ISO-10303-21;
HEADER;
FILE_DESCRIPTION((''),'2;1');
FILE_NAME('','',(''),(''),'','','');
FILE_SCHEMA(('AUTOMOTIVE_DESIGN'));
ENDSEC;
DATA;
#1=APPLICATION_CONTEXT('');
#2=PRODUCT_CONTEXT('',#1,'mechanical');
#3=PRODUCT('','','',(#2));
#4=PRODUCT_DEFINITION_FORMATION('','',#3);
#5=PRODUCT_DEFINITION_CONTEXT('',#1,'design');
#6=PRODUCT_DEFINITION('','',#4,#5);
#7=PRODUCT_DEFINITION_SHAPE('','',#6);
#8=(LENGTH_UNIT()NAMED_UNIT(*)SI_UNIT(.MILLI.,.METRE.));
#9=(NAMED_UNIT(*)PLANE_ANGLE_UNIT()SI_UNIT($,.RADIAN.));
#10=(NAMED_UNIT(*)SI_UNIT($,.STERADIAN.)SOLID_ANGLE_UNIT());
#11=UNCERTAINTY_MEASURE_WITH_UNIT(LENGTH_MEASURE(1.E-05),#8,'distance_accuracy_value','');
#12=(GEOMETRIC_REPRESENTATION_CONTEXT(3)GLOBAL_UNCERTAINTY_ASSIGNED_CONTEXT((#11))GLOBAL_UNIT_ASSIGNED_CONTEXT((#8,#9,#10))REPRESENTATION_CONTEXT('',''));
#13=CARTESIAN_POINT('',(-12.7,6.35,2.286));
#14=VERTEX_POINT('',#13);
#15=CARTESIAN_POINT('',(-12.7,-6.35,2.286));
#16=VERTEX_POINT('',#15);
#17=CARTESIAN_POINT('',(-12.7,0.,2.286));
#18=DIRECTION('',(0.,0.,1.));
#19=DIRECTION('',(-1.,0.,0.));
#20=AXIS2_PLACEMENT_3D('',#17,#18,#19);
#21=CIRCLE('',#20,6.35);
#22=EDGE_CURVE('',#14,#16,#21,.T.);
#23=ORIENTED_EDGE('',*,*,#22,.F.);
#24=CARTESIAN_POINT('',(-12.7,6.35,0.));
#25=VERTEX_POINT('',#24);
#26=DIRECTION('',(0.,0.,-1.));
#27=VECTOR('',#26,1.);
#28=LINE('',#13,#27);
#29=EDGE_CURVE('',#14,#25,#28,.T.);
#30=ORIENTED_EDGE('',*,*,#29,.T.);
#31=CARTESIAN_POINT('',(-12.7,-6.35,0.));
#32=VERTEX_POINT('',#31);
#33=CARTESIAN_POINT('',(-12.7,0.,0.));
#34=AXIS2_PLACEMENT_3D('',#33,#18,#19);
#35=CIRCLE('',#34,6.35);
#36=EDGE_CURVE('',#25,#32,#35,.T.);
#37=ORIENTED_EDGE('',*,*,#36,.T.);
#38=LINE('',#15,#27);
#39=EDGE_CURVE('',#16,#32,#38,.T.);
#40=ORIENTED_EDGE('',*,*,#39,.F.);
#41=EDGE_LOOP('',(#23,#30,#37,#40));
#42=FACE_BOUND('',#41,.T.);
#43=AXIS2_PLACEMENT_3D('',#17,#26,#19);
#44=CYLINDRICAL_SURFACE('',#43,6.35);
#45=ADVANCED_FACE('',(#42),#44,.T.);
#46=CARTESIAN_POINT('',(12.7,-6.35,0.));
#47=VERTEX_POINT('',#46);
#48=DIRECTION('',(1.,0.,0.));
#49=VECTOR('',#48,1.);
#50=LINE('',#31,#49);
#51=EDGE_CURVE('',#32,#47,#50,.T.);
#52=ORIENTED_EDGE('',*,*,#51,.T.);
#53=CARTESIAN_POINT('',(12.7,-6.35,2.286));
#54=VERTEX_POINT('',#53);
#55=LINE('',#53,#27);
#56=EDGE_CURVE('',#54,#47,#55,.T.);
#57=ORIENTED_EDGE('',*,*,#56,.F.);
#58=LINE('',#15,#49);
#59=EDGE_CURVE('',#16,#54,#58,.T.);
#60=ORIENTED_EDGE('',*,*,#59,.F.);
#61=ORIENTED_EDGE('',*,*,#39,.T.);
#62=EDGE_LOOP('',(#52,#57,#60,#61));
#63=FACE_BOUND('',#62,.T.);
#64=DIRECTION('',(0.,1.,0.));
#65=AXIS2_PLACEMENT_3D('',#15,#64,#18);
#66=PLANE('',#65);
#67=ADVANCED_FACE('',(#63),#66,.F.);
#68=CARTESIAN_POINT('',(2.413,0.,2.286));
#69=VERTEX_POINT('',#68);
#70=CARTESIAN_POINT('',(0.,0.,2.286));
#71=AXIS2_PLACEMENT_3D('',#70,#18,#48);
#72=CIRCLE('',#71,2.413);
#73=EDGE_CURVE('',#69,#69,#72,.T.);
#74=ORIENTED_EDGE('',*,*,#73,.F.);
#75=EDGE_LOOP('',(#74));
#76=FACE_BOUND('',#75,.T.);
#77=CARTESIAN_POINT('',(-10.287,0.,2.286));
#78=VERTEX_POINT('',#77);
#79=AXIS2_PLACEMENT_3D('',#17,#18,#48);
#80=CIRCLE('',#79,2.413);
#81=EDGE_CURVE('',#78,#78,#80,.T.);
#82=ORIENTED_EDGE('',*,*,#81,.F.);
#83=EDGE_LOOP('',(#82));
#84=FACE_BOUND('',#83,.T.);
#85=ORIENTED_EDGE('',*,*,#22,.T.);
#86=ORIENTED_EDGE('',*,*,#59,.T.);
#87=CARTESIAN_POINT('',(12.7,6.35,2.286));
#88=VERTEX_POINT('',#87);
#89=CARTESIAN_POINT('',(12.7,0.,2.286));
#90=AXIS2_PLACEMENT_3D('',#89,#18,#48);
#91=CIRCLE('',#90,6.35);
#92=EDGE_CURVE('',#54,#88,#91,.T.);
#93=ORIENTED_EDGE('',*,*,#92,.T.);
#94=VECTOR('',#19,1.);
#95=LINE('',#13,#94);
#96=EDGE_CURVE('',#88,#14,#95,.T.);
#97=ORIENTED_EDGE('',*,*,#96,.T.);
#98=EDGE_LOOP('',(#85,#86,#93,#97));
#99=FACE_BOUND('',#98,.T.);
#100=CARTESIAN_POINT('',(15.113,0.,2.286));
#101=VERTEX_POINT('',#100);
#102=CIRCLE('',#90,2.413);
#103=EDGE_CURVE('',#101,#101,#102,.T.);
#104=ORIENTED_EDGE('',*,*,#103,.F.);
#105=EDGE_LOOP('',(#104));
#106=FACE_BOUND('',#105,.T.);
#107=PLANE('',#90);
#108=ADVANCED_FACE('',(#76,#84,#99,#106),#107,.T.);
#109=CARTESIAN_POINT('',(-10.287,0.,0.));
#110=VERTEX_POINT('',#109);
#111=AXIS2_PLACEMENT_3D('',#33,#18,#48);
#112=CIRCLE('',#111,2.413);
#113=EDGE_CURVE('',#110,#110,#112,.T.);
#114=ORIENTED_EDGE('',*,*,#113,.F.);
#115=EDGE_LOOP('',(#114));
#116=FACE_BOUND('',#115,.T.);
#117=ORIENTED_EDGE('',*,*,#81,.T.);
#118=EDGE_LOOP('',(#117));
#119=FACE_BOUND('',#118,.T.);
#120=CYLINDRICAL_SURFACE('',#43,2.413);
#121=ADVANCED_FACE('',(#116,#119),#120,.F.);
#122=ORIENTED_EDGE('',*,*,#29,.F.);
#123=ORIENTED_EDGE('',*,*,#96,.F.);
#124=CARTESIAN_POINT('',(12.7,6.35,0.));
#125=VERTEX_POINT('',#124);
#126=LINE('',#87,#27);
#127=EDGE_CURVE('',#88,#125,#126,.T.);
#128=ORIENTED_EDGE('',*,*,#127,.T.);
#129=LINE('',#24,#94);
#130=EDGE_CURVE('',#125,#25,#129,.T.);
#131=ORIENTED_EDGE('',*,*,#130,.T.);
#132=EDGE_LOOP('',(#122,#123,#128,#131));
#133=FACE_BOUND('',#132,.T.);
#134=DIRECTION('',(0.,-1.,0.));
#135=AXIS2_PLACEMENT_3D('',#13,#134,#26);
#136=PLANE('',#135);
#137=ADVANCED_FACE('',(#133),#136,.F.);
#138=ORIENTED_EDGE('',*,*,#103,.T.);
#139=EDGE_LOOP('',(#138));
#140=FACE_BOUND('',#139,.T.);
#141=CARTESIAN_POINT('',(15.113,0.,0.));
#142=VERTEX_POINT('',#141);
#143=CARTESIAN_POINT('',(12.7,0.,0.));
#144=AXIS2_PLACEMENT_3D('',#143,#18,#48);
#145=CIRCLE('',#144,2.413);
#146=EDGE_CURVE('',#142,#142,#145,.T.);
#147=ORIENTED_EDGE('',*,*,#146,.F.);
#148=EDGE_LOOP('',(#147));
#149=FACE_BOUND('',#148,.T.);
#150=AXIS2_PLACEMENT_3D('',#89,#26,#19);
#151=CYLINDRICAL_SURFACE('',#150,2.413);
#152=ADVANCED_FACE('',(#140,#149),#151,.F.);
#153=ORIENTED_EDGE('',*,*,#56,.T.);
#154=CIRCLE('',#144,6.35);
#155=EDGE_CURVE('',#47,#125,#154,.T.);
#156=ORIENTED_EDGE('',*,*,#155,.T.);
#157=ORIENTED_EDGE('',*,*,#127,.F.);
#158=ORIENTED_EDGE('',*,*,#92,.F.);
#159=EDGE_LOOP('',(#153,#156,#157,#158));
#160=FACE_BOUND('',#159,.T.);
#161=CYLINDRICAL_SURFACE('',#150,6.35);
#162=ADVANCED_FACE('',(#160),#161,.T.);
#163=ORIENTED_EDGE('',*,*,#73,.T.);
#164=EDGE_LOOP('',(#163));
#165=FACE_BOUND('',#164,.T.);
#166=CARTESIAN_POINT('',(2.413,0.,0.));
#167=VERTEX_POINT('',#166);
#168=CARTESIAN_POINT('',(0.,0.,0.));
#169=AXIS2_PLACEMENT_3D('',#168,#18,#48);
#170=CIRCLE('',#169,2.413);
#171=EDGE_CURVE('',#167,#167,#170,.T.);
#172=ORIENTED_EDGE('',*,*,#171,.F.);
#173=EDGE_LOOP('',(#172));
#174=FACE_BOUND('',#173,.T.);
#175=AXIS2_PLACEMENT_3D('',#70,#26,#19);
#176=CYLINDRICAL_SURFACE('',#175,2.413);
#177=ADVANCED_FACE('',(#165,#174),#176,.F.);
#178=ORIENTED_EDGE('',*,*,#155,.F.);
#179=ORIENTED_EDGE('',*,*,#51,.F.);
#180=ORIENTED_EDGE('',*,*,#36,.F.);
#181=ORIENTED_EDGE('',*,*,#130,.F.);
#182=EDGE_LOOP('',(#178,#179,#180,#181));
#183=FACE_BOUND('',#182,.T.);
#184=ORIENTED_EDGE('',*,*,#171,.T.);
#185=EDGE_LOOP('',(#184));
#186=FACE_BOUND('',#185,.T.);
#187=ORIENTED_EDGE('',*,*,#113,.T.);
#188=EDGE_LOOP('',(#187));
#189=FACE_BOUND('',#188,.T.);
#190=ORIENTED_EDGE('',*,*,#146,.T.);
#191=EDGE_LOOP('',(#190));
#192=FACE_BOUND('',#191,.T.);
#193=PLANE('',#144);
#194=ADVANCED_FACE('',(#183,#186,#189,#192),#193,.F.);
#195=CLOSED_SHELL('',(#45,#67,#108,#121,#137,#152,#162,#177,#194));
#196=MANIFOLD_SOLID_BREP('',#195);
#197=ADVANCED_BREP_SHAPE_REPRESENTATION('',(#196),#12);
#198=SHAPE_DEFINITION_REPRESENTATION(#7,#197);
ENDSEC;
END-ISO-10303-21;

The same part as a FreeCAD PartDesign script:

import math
import FreeCAD as App
import Part
import Sketcher
Q = App.Units.Quantity

doc = App.newDocument("Part")
body = doc.addObject("PartDesign::Body", "Body")

# Sketch on XY plane
sketch1 = doc.addObject("Sketcher::SketchObject", "Sketch")
body.addObject(sketch1)
sketch1.AttachmentSupport = (doc.XY_Plane, [""])
sketch1.MapMode = "FlatFace"
sketch1.addGeometry([
    Part.LineSegment(App.Vector(12.7, 6.3, 0), App.Vector(-12.7, 6.3, 0)),  # 0
    Part.ArcOfCircle(Part.Circle(App.Vector(-12.7, 0, 0), App.Vector(0, 0, 1), 6.3), math.radians(90), math.radians(270)),  # 1
    Part.LineSegment(App.Vector(-12.7, -6.3, 0), App.Vector(12.7, -6.3, 0)),  # 2
    Part.ArcOfCircle(Part.Circle(App.Vector(12.7, 0, 0), App.Vector(0, 0, 1), 6.3), math.radians(-90), math.radians(90)),  # 3
    Part.Circle(App.Vector(12.7, 0, 0), App.Vector(0, 0, 1), 2.4),  # 4
    Part.Circle(App.Vector(0, 0, 0), App.Vector(0, 0, 1), 2.4),  # 5
    Part.Circle(App.Vector(-12.7, 0, 0), App.Vector(0, 0, 1), 2.4),  # 6
], False)
sketch1.addConstraint([
    Sketcher.Constraint("Tangent", 0, 2, 1, 1),
    Sketcher.Constraint("Tangent", 1, 2, 2, 1),
    Sketcher.Constraint("Tangent", 2, 2, 3, 1),
    Sketcher.Constraint("Tangent", 3, 2, 0, 1),
    Sketcher.Constraint("Horizontal", 0),
    Sketcher.Constraint("Horizontal", 2),
    Sketcher.Constraint("Coincident", 5, 3, -1, 1),
    Sketcher.Constraint("Coincident", 4, 3, 3, 3),
    Sketcher.Constraint("Coincident", 6, 3, 1, 3),
    Sketcher.Constraint("Equal", 4, 5),
    Sketcher.Constraint("Equal", 5, 6),
    Sketcher.Constraint("Symmetric", 1, 3, 3, 3, -1, 1),
    Sketcher.Constraint("Diameter", 4, Q("0.19 in")),
    Sketcher.Constraint("DistanceX", 0, 2, 0, 1, Q("1 in")),
    Sketcher.Constraint("Radius", 1, Q("0.25 in")),
])
pad1 = doc.addObject("PartDesign::Pad", "Pad")
body.addObject(pad1)
pad1.Profile = sketch1
pad1.Length = Q("0.09 in")

doc.recompute()
